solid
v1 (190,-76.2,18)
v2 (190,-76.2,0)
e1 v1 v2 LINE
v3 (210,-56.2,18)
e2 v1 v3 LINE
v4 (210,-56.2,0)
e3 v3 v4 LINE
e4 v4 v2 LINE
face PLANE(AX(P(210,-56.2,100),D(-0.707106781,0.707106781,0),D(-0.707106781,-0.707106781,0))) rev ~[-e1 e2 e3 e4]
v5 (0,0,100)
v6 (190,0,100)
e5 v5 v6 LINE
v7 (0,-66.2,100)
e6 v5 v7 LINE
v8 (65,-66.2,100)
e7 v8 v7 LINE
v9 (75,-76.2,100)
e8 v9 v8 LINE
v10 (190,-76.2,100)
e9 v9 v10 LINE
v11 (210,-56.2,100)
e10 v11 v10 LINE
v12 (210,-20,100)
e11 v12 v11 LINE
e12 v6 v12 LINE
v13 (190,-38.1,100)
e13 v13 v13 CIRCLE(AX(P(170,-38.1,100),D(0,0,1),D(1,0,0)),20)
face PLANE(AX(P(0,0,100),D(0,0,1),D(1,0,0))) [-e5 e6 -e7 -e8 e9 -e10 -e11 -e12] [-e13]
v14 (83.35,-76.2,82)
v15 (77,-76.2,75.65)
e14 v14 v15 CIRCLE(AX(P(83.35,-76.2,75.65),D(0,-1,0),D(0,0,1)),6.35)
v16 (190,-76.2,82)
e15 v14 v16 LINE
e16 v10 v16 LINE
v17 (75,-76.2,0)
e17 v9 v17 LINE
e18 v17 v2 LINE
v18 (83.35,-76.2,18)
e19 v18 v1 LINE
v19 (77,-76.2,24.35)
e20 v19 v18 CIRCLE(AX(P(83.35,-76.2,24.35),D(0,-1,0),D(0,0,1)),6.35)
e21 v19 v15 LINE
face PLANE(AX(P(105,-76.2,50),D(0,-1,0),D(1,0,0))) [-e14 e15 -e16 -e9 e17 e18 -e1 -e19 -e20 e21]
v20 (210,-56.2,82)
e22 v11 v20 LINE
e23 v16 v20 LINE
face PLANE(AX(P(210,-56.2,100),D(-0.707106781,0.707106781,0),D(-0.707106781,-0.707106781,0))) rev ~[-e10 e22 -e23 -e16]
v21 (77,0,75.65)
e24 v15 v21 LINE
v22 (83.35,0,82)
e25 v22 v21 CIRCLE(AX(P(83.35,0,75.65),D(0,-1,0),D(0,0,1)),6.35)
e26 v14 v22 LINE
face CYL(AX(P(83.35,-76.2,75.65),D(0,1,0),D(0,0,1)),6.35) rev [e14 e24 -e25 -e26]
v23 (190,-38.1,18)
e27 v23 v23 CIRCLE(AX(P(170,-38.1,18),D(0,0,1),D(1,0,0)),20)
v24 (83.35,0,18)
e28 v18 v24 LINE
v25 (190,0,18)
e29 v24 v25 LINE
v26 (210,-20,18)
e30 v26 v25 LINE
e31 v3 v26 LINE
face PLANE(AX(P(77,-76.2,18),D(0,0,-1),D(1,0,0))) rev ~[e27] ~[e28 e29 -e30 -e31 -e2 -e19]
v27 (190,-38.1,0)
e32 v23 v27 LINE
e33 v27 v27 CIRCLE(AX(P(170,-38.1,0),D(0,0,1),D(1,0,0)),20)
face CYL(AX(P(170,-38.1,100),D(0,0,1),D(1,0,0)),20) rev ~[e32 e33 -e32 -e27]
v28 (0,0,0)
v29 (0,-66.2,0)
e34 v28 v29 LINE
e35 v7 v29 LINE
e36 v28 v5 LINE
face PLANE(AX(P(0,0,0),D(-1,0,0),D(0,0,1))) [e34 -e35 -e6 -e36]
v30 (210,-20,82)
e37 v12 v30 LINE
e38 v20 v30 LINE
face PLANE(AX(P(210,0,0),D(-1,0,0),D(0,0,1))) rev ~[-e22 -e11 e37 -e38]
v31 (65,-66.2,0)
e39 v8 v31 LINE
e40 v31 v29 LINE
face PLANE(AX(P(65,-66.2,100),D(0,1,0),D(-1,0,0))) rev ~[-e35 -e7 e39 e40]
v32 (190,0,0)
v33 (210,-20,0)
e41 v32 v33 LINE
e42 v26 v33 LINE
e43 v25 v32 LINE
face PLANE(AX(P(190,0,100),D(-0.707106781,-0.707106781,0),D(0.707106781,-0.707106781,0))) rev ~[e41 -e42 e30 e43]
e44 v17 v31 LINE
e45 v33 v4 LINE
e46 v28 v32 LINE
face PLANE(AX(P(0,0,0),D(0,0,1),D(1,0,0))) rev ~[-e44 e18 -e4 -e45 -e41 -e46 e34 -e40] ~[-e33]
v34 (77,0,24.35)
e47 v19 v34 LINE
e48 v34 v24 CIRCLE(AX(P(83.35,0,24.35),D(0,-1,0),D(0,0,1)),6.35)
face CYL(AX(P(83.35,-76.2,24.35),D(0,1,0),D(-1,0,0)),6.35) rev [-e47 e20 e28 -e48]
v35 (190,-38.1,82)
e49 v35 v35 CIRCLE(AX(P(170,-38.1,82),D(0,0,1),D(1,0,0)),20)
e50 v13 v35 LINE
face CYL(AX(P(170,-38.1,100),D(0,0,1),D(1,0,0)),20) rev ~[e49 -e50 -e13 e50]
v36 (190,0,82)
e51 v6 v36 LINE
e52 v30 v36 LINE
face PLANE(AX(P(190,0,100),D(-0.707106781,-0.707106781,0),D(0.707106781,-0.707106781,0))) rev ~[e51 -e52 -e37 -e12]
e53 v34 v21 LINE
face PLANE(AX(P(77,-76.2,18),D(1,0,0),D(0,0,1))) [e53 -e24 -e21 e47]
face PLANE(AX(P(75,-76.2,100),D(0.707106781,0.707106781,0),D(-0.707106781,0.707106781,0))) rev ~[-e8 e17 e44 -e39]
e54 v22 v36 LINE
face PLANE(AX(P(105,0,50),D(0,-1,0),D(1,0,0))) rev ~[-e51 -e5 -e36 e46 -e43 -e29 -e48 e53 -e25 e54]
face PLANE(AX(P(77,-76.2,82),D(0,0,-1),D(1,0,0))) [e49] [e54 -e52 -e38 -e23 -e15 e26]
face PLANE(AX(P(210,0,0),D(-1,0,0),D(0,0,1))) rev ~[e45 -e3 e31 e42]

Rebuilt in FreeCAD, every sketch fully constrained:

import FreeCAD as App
import Part
import Sketcher


def edges_at(feature, points):
    """Names of the edges that pass closest to the given points."""
    edges = feature.Shape.Edges
    near = lambda p: min(range(len(edges)), key=lambda i: edges[i].distToShape(Part.Vertex(*p))[0])
    return sorted({f"Edge{near(p) + 1}" for p in points})


def add_polygon(sketch, points):
    """Adds a closed chain of lines whose ends are joined by coincident constraints."""
    first, n = sketch.GeometryCount, len(points)
    for a, b in zip(points, points[1:] + points[:1]):
        sketch.addGeometry(Part.LineSegment(App.Vector(*a, 0), App.Vector(*b, 0)), False)
    for i in range(n):
        sketch.addConstraint(Sketcher.Constraint("Coincident", first + i, 2, first + (i + 1) % n, 1))

doc = App.newDocument("Part")
body = doc.addObject("PartDesign::Body", "Body")

sketch1 = body.newObject("Sketcher::SketchObject", "Sketch")
sketch1.AttachmentSupport = (doc.getObject("XZ_Plane"), [""])
sketch1.MapMode = "FlatFace"
add_polygon(sketch1, [(0, 100), (0, 0), (210, 0), (210, 100)])
sketch1.addConstraint([
    Sketcher.Constraint("Vertical", 0),
    Sketcher.Constraint("Horizontal", 1),
    Sketcher.Constraint("Vertical", 2),
    Sketcher.Constraint("Horizontal", 3),
    Sketcher.Constraint("Coincident", 0, 2, -1, 1),
    Sketcher.Constraint("DistanceX", 1, 1, 1, 2, 210.0),
    Sketcher.Constraint("DistanceY", 0, 2, 0, 1, 100.0),
])
pad1 = body.newObject("PartDesign::Pad", "Pad")
pad1.Profile = sketch1
pad1.Length = 76.2

sketch2 = body.newObject("Sketcher::SketchObject", "Sketch001")
sketch2.AttachmentSupport = (doc.getObject("XZ_Plane"), [""])
sketch2.MapMode = "FlatFace"
sketch2.AttachmentOffset = App.Placement(App.Vector(0, 0, 76.2), App.Rotation())
add_polygon(sketch2, [(77, 82), (77, 18), (210, 18), (210, 82)])
sketch2.addConstraint([
    Sketcher.Constraint("Vertical", 0),
    Sketcher.Constraint("Horizontal", 1),
    Sketcher.Constraint("Vertical", 2),
    Sketcher.Constraint("Horizontal", 3),
    Sketcher.Constraint("DistanceX", 1, 1, 1, 2, 133.0),
    Sketcher.Constraint("DistanceY", 0, 2, 0, 1, 64.0),
    Sketcher.Constraint("DistanceX", -1, 1, 0, 2, 77.0),
    Sketcher.Constraint("DistanceY", -1, 1, 0, 2, 18.0),
])
pocket1 = body.newObject("PartDesign::Pocket", "Pocket")
pocket1.Profile = sketch2
pocket1.Type = "ThroughAll"
doc.recompute()

fillet = body.newObject("PartDesign::Fillet", "Fillet")
fillet.Base = (pocket1, edges_at(pocket1, [(77, -38.1, 82), (77, -38.1, 18)]))
fillet.Radius = 6.35

sketch3 = body.newObject("Sketcher::SketchObject", "Sketch002")
sketch3.AttachmentSupport = (doc.getObject("XY_Plane"), [""])
sketch3.MapMode = "FlatFace"
sketch3.AttachmentOffset = App.Placement(App.Vector(0, 0, 100), App.Rotation())
add_polygon(sketch3, [(190, 16.513776), (190, 0), (210, -20), (210, -56.2), (190, -76.2), (190, -91.743216), (258.705469, -91.743216), (258.705469, 16.513776)])
sketch3.addGeometry(Part.Circle(App.Vector(170, -38.1, 0), App.Vector(0, 0, 1), 20), False)
sketch3.addConstraint([
    Sketcher.Constraint("Vertical", 0),
    Sketcher.Constraint("Vertical", 2),
    Sketcher.Constraint("Vertical", 4),
    Sketcher.Constraint("Horizontal", 5),
    Sketcher.Constraint("Vertical", 6),
    Sketcher.Constraint("Horizontal", 7),
    Sketcher.Constraint("PointOnObject", 0, 2, -1),
    Sketcher.Constraint("Perpendicular", 1, 3),
    Sketcher.Constraint("Vertical", 0, 2, 3, 2),
    Sketcher.Constraint("Equal", 1, 3),
    Sketcher.Constraint("Diameter", 8, 40.0),
    Sketcher.Constraint("DistanceY", 2, 2, 2, 1, 36.2),
    Sketcher.Constraint("DistanceX", -1, 1, 8, 3, 170.0),
    Sketcher.Constraint("DistanceX", -1, 1, 0, 2, 190.0),
    Sketcher.Constraint("DistanceX", -1, 1, 1, 2, 210.0),
    Sketcher.Constraint("DistanceY", 8, 3, -1, 1, 38.1),
    Sketcher.Constraint("DistanceX", 5, 1, 5, 2, 68.705469),
    Sketcher.Constraint("DistanceY", 6, 1, 6, 2, 108.256992),
    Sketcher.Constraint("DistanceY", 0, 2, 0, 1, 16.513776),
])
pocket2 = body.newObject("PartDesign::Pocket", "Pocket001")
pocket2.Profile = sketch3
pocket2.Type = "ThroughAll"

sketch4 = body.newObject("Sketcher::SketchObject", "Sketch003")
sketch4.AttachmentSupport = (doc.getObject("XY_Plane"), [""])
sketch4.MapMode = "FlatFace"
sketch4.AttachmentOffset = App.Placement(App.Vector(0, 0, 100), App.Rotation())
add_polygon(sketch4, [(65, -66.2), (0, -66.2), (0, -76.2), (75, -76.2)])
sketch4.addConstraint([
    Sketcher.Constraint("Horizontal", 0),
    Sketcher.Constraint("Vertical", 1),
    Sketcher.Constraint("Horizontal", 2),
    Sketcher.Constraint("PointOnObject", 0, 2, -2),
    Sketcher.Constraint("DistanceX", 0, 2, 0, 1, 65.0),
    Sketcher.Constraint("DistanceX", 2, 1, 2, 2, 75.0),
    Sketcher.Constraint("DistanceY", 1, 2, 1, 1, 10.0),
    Sketcher.Constraint("DistanceY", 0, 2, -1, 1, 66.2),
])
pocket3 = body.newObject("PartDesign::Pocket", "Pocket002")
pocket3.Profile = sketch4
pocket3.Type = "ThroughAll"

doc.recompute()
